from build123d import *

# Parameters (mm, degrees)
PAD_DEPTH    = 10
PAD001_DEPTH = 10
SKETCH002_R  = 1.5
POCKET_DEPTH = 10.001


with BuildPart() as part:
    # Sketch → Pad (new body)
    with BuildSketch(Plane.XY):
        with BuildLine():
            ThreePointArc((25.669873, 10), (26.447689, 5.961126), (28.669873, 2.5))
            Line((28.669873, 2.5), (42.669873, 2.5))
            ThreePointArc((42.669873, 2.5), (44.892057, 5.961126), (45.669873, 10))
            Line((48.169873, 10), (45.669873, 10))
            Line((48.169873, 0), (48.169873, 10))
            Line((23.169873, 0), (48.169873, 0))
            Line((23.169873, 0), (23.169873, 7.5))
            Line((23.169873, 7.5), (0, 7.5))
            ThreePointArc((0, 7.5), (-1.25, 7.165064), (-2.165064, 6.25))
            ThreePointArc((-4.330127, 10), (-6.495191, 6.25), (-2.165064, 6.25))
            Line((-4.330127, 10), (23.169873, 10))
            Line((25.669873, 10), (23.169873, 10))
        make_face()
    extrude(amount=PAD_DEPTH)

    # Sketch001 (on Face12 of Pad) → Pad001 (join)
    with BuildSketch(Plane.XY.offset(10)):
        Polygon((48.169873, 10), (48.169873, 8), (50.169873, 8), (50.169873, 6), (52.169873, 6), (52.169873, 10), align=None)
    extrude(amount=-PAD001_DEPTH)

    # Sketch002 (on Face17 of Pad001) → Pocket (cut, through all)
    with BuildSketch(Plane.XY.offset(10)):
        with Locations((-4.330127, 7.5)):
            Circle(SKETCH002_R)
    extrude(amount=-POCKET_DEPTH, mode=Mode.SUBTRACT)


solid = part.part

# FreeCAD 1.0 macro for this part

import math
import FreeCAD as App
import Part
import Sketcher


def add_polygon(sketch, points):
    """Adds a closed chain of lines whose ends are joined by coincident constraints."""
    first, n = sketch.GeometryCount, len(points)
    for a, b in zip(points, points[1:] + points[:1]):
        sketch.addGeometry(Part.LineSegment(App.Vector(*a, 0), App.Vector(*b, 0)), False)
    for i in range(n):
        sketch.addConstraint(Sketcher.Constraint("Coincident", first + i, 2, first + (i + 1) % n, 1))

doc = App.newDocument("Part")
body = doc.addObject("PartDesign::Body", "Body")

# Sketch on XY plane
sketch1 = body.newObject("Sketcher::SketchObject", "Sketch")
sketch1.AttachmentSupport = (doc.getObject("XY_Plane"), [""])
sketch1.MapMode = "FlatFace"
sketch1.addGeometry([
    Part.ArcOfCircle(Part.Circle(App.Vector(36.544871, 9.999999, 0), App.Vector(0, 0, 1), 10.874998), math.radians(179.999996), math.radians(223.602823)),  # 0
    Part.LineSegment(App.Vector(25.669873, 10, 0), App.Vector(-4.330127, 10, 0)),  # 1
    Part.ArcOfCircle(Part.Circle(App.Vector(-4.330127, 7.5, 0), App.Vector(0, 0, 1), 2.5), math.radians(89.999989), math.radians(330)),  # 2
    Part.ArcOfCircle(Part.Circle(App.Vector(-0.000001, 5.000001, 0), App.Vector(0, 0, 1), 2.499999), math.radians(89.999973), math.radians(150.000015)),  # 3
    Part.LineSegment(App.Vector(0, 7.5, 0), App.Vector(23.169873, 7.5, 0)),  # 4
    Part.LineSegment(App.Vector(23.169873, 7.5, 0), App.Vector(23.169873, 0, 0)),  # 5
    Part.LineSegment(App.Vector(23.169873, 0, 0), App.Vector(48.169873, 0, 0)),  # 6
    Part.LineSegment(App.Vector(48.169873, 0, 0), App.Vector(48.169873, 10, 0)),  # 7
    Part.LineSegment(App.Vector(48.169873, 10, 0), App.Vector(45.669873, 10, 0)),  # 8
    Part.ArcOfCircle(Part.Circle(App.Vector(34.794875, 9.999999, 0), App.Vector(0, 0, 1), 10.874998), math.radians(-43.602823), math.radians(0.000004)),  # 9
    Part.LineSegment(App.Vector(42.669873, 2.5, 0), App.Vector(28.669873, 2.5, 0)),  # 10
], False)
sketch1.addConstraint([
    Sketcher.Constraint("Coincident", 0, 1, 1, 1),
    Sketcher.Constraint("Tangent", 1, 2, 2, 1),
    Sketcher.Constraint("Tangent", 2, 2, 3, 2),
    Sketcher.Constraint("Tangent", 3, 1, 4, 1),
    Sketcher.Constraint("Coincident", 4, 2, 5, 1),
    Sketcher.Constraint("Coincident", 5, 2, 6, 1),
    Sketcher.Constraint("Coincident", 6, 2, 7, 1),
    Sketcher.Constraint("Coincident", 7, 2, 8, 1),
    Sketcher.Constraint("Coincident", 8, 2, 9, 2),
    Sketcher.Constraint("Coincident", 9, 1, 10, 1),
    Sketcher.Constraint("Coincident", 10, 2, 0, 2),
    Sketcher.Constraint("Horizontal", 1),
    Sketcher.Constraint("Horizontal", 4),
    Sketcher.Constraint("Vertical", 5),
    Sketcher.Constraint("Horizontal", 6),
    Sketcher.Constraint("Vertical", 7),
    Sketcher.Constraint("Horizontal", 8),
    Sketcher.Constraint("Horizontal", 10),
    Sketcher.Constraint("Equal", 2, 3),
    Sketcher.Constraint("Equal", 0, 9),
    Sketcher.Constraint("PointOnObject", 3, 3, -2),
    Sketcher.Constraint("PointOnObject", 5, 2, -1),
    Sketcher.Constraint("Horizontal", 0, 3, 9, 3),
    Sketcher.Constraint("Horizontal", 9, 3, 0, 1),
    Sketcher.Constraint("Horizontal", 2, 3, 3, 1),
    Sketcher.Constraint("Horizontal", 1, 2, 7, 2),
    Sketcher.Constraint("Radius", 2, 2.5),
    Sketcher.Constraint("DistanceX", 1, 2, 1, 1, 30.0),
    Sketcher.Constraint("DistanceX", 6, 1, 6, 2, 25.0),
    Sketcher.Constraint("DistanceX", 10, 2, 10, 1, 14.0),
    Sketcher.Constraint("DistanceY", 7, 1, 7, 2, 10.0),
    Sketcher.Constraint("DistanceX", 8, 2, 8, 1, 2.5),
    Sketcher.Constraint("Radius", 0, 10.874998),
    Sketcher.Constraint("DistanceX", 0, 1, 8, 2, 20.0),
])
pad1 = body.newObject("PartDesign::Pad", "Pad")
pad1.Profile = sketch1
pad1.Length = 10

# Sketch on XY plane
sketch2 = body.newObject("Sketcher::SketchObject", "Sketch001")
sketch2.AttachmentSupport = (doc.getObject("XY_Plane"), [""])
sketch2.MapMode = "FlatFace"
sketch2.AttachmentOffset = App.Placement(App.Vector(0, 0, 10), App.Rotation())
add_polygon(sketch2, [(48.169873, 10), (48.169873, 8), (50.169873, 8), (50.169873, 6), (52.169873, 6), (52.169873, 10)])  # lines 0-5
sketch2.addConstraint([
    Sketcher.Constraint("Vertical", 0),
    Sketcher.Constraint("Horizontal", 1),
    Sketcher.Constraint("Vertical", 2),
    Sketcher.Constraint("Horizontal", 3),
    Sketcher.Constraint("Vertical", 4),
    Sketcher.Constraint("Horizontal", 5),
    Sketcher.Constraint("Equal", 1, 3),
    Sketcher.Constraint("Equal", 3, 0),
    Sketcher.Constraint("Equal", 0, 2),
    Sketcher.Constraint("DistanceX", 1, 1, 1, 2, 2.0),
    Sketcher.Constraint("DistanceY", -1, 1, 0, 2, 8.0),
    Sketcher.Constraint("DistanceX", -1, 1, 0, 2, 48.169873),
])
pad2 = body.newObject("PartDesign::Pad", "Pad001")
pad2.Profile = sketch2
pad2.Length = 10
pad2.Reversed = True

# Sketch on XY plane
sketch3 = body.newObject("Sketcher::SketchObject", "Sketch002")
sketch3.AttachmentSupport = (doc.getObject("XY_Plane"), [""])
sketch3.MapMode = "FlatFace"
sketch3.AttachmentOffset = App.Placement(App.Vector(0, 0, 10), App.Rotation())
sketch3.addGeometry(Part.Circle(App.Vector(-4.330127, 7.5, 0), App.Vector(0, 0, 1), 1.5), False)
sketch3.addConstraint([
    Sketcher.Constraint("Diameter", 0, 3.0),
    Sketcher.Constraint("DistanceY", -1, 1, 0, 3, 7.5),
    Sketcher.Constraint("DistanceX", 0, 3, -1, 1, 4.330127),
])
pocket1 = body.newObject("PartDesign::Pocket", "Pocket")
pocket1.Profile = sketch3
pocket1.Type = "ThroughAll"

doc.recompute()
